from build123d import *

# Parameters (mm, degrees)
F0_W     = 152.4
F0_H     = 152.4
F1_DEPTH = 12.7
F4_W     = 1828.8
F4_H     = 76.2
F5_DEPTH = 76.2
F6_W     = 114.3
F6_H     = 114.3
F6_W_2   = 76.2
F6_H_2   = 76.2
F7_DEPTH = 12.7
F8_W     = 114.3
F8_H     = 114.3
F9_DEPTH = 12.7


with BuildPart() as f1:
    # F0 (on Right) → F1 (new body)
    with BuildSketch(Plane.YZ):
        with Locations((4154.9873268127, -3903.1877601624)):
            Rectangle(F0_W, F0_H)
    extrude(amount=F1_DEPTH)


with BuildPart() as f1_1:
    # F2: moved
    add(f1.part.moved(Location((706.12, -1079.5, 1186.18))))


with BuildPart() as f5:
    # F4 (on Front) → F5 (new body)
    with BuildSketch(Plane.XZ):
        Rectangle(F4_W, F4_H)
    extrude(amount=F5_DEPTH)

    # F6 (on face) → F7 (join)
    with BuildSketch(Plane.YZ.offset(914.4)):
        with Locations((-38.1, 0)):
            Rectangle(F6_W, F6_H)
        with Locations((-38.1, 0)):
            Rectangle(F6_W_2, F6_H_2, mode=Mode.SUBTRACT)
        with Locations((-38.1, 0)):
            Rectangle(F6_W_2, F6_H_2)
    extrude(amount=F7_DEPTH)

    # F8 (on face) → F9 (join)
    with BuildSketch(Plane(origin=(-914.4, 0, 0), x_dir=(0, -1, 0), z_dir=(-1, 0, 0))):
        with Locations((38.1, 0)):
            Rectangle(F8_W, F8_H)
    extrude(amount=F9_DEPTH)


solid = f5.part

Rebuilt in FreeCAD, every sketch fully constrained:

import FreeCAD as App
import Part
import Sketcher
from FreeCAD import Vector
Q = App.Units.Quantity

doc = App.newDocument("Part")
body = doc.addObject("PartDesign::Body", "Body")

# Sketch on YZ plane
sketch1 = body.newObject("Sketcher::SketchObject", "Sketch")
sketch1.AttachmentSupport = (doc.getObject("YZ_Plane"), [""])
sketch1.MapMode = "FlatFace"
sketch1.addGeometry(Part.LineSegment(Vector(4078.787327, -3826.98776, 0), Vector(4078.787327, -3979.38776, 0)), False)
sketch1.addGeometry(Part.LineSegment(Vector(4078.787327, -3979.38776, 0), Vector(4231.187327, -3979.38776, 0)), False)
sketch1.addGeometry(Part.LineSegment(Vector(4231.187327, -3979.38776, 0), Vector(4231.187327, -3826.98776, 0)), False)
sketch1.addGeometry(Part.LineSegment(Vector(4231.187327, -3826.98776, 0), Vector(4078.787327, -3826.98776, 0)), False)
sketch1.addConstraint(Sketcher.Constraint("Coincident", 0, 2, 1, 1))
sketch1.addConstraint(Sketcher.Constraint("Coincident", 1, 2, 2, 1))
sketch1.addConstraint(Sketcher.Constraint("Coincident", 2, 2, 3, 1))
sketch1.addConstraint(Sketcher.Constraint("Coincident", 3, 2, 0, 1))
sketch1.addConstraint(Sketcher.Constraint("Vertical", 0))
sketch1.addConstraint(Sketcher.Constraint("Horizontal", 1))
sketch1.addConstraint(Sketcher.Constraint("Vertical", 2))
sketch1.addConstraint(Sketcher.Constraint("Horizontal", 3))
sketch1.addConstraint(Sketcher.Constraint("Equal", 3, 0))
sketch1.addConstraint(Sketcher.Constraint("DistanceX", 1, 1, 1, 2, Q("6 in")))
sketch1.addConstraint(Sketcher.Constraint("DistanceY", 0, 2, -1, 1, Q("3979.38776 mm")))
sketch1.addConstraint(Sketcher.Constraint("DistanceX", -1, 1, 0, 2, Q("4078.787327 mm")))
pad1 = body.newObject("PartDesign::Pad", "Pad")
pad1.Profile = sketch1
pad1.Length = Q("0.5 in")
body2 = doc.addObject("PartDesign::Body", "Body001")
doc.recompute()

body.Placement = App.Placement(Vector(706.12, -1079.5, 1186.18), App.Rotation(Vector(0, 0, 1), 0))
boolean = body2.newObject("PartDesign::Boolean", "Boolean")
boolean.Type = "Fuse"
boolean.addObjects([body])
body3 = doc.addObject("PartDesign::Body", "Body002")

# Sketch on XZ plane
sketch2 = body3.newObject("Sketcher::SketchObject", "Sketch001")
sketch2.AttachmentSupport = (doc.getObject("XZ_Plane002"), [""])
sketch2.MapMode = "FlatFace"
sketch2.addGeometry(Part.LineSegment(Vector(-914.4, 38.1, 0), Vector(-914.4, -38.1, 0)), False)
sketch2.addGeometry(Part.LineSegment(Vector(-914.4, -38.1, 0), Vector(914.4, -38.1, 0)), False)
sketch2.addGeometry(Part.LineSegment(Vector(914.4, -38.1, 0), Vector(914.4, 38.1, 0)), False)
sketch2.addGeometry(Part.LineSegment(Vector(914.4, 38.1, 0), Vector(-914.4, 38.1, 0)), False)
sketch2.addConstraint(Sketcher.Constraint("Coincident", 0, 2, 1, 1))
sketch2.addConstraint(Sketcher.Constraint("Coincident", 1, 2, 2, 1))
sketch2.addConstraint(Sketcher.Constraint("Coincident", 2, 2, 3, 1))
sketch2.addConstraint(Sketcher.Constraint("Coincident", 3, 2, 0, 1))
sketch2.addConstraint(Sketcher.Constraint("Vertical", 0))
sketch2.addConstraint(Sketcher.Constraint("Horizontal", 1))
sketch2.addConstraint(Sketcher.Constraint("Vertical", 2))
sketch2.addConstraint(Sketcher.Constraint("Horizontal", 3))
sketch2.addConstraint(Sketcher.Constraint("Symmetric", 0, 2, 2, 2, -1, 1))
sketch2.addConstraint(Sketcher.Constraint("DistanceX", 1, 1, 1, 2, Q("72 in")))
sketch2.addConstraint(Sketcher.Constraint("DistanceY", 0, 2, 0, 1, Q("3 in")))
pad2 = body3.newObject("PartDesign::Pad", "Pad001")
pad2.Profile = sketch2
pad2.Length = Q("3 in")

# Sketch on YZ plane
sketch3 = body3.newObject("Sketcher::SketchObject", "Sketch002")
sketch3.AttachmentSupport = (doc.getObject("YZ_Plane002"), [""])
sketch3.MapMode = "FlatFace"
sketch3.AttachmentOffset = App.Placement(Vector(0, 0, 36 * 25.4), App.Rotation())
sketch3.addGeometry(Part.LineSegment(Vector(-95.25, 57.15, 0), Vector(-95.25, -57.15, 0)), False)
sketch3.addGeometry(Part.LineSegment(Vector(-95.25, -57.15, 0), Vector(19.05, -57.15, 0)), False)
sketch3.addGeometry(Part.LineSegment(Vector(19.05, -57.15, 0), Vector(19.05, 57.15, 0)), False)
sketch3.addGeometry(Part.LineSegment(Vector(19.05, 57.15, 0), Vector(-95.25, 57.15, 0)), False)
sketch3.addConstraint(Sketcher.Constraint("Coincident", 0, 2, 1, 1))
sketch3.addConstraint(Sketcher.Constraint("Coincident", 1, 2, 2, 1))
sketch3.addConstraint(Sketcher.Constraint("Coincident", 2, 2, 3, 1))
sketch3.addConstraint(Sketcher.Constraint("Coincident", 3, 2, 0, 1))
sketch3.addConstraint(Sketcher.Constraint("Vertical", 0))
sketch3.addConstraint(Sketcher.Constraint("Horizontal", 1))
sketch3.addConstraint(Sketcher.Constraint("Vertical", 2))
sketch3.addConstraint(Sketcher.Constraint("Horizontal", 3))
sketch3.addConstraint(Sketcher.Constraint("Equal", 3, 0))
sketch3.addConstraint(Sketcher.Constraint("DistanceX", 1, 1, 1, 2, Q("4.5 in")))
sketch3.addConstraint(Sketcher.Constraint("DistanceX", 0, 2, -1, 1, Q("3.75 in")))
sketch3.addConstraint(Sketcher.Constraint("DistanceY", 0, 2, -1, 1, Q("2.25 in")))
pad3 = body3.newObject("PartDesign::Pad", "Pad002")
pad3.Profile = sketch3
pad3.Length = Q("0.5 in")

# Sketch on YZ plane
sketch4 = body3.newObject("Sketcher::SketchObject", "Sketch003")
sketch4.AttachmentSupport = (doc.getObject("YZ_Plane002"), [""])
sketch4.MapMode = "FlatFace"
sketch4.AttachmentOffset = App.Placement(Vector(0, 0, -36 * 25.4), App.Rotation())
sketch4.addGeometry(Part.LineSegment(Vector(19.05, 57.15, 0), Vector(19.05, -57.15, 0)), False)
sketch4.addGeometry(Part.LineSegment(Vector(19.05, -57.15, 0), Vector(-95.25, -57.15, 0)), False)
sketch4.addGeometry(Part.LineSegment(Vector(-95.25, -57.15, 0), Vector(-95.25, 57.15, 0)), False)
sketch4.addGeometry(Part.LineSegment(Vector(-95.25, 57.15, 0), Vector(19.05, 57.15, 0)), False)
sketch4.addConstraint(Sketcher.Constraint("Coincident", 0, 2, 1, 1))
sketch4.addConstraint(Sketcher.Constraint("Coincident", 1, 2, 2, 1))
sketch4.addConstraint(Sketcher.Constraint("Coincident", 2, 2, 3, 1))
sketch4.addConstraint(Sketcher.Constraint("Coincident", 3, 2, 0, 1))
sketch4.addConstraint(Sketcher.Constraint("Vertical", 0))
sketch4.addConstraint(Sketcher.Constraint("Horizontal", 1))
sketch4.addConstraint(Sketcher.Constraint("Vertical", 2))
sketch4.addConstraint(Sketcher.Constraint("Horizontal", 3))
sketch4.addConstraint(Sketcher.Constraint("Equal", 3, 0))
sketch4.addConstraint(Sketcher.Constraint("DistanceX", 1, 2, 1, 1, Q("4.5 in")))
sketch4.addConstraint(Sketcher.Constraint("DistanceX", -1, 1, 0, 2, Q("0.75 in")))
sketch4.addConstraint(Sketcher.Constraint("DistanceY", 0, 2, -1, 1, Q("2.25 in")))
pad4 = body3.newObject("PartDesign::Pad", "Pad003")
pad4.Profile = sketch4
pad4.Length = Q("0.5 in")
pad4.Reversed = True
body2.Visibility = False

doc.recompute()
